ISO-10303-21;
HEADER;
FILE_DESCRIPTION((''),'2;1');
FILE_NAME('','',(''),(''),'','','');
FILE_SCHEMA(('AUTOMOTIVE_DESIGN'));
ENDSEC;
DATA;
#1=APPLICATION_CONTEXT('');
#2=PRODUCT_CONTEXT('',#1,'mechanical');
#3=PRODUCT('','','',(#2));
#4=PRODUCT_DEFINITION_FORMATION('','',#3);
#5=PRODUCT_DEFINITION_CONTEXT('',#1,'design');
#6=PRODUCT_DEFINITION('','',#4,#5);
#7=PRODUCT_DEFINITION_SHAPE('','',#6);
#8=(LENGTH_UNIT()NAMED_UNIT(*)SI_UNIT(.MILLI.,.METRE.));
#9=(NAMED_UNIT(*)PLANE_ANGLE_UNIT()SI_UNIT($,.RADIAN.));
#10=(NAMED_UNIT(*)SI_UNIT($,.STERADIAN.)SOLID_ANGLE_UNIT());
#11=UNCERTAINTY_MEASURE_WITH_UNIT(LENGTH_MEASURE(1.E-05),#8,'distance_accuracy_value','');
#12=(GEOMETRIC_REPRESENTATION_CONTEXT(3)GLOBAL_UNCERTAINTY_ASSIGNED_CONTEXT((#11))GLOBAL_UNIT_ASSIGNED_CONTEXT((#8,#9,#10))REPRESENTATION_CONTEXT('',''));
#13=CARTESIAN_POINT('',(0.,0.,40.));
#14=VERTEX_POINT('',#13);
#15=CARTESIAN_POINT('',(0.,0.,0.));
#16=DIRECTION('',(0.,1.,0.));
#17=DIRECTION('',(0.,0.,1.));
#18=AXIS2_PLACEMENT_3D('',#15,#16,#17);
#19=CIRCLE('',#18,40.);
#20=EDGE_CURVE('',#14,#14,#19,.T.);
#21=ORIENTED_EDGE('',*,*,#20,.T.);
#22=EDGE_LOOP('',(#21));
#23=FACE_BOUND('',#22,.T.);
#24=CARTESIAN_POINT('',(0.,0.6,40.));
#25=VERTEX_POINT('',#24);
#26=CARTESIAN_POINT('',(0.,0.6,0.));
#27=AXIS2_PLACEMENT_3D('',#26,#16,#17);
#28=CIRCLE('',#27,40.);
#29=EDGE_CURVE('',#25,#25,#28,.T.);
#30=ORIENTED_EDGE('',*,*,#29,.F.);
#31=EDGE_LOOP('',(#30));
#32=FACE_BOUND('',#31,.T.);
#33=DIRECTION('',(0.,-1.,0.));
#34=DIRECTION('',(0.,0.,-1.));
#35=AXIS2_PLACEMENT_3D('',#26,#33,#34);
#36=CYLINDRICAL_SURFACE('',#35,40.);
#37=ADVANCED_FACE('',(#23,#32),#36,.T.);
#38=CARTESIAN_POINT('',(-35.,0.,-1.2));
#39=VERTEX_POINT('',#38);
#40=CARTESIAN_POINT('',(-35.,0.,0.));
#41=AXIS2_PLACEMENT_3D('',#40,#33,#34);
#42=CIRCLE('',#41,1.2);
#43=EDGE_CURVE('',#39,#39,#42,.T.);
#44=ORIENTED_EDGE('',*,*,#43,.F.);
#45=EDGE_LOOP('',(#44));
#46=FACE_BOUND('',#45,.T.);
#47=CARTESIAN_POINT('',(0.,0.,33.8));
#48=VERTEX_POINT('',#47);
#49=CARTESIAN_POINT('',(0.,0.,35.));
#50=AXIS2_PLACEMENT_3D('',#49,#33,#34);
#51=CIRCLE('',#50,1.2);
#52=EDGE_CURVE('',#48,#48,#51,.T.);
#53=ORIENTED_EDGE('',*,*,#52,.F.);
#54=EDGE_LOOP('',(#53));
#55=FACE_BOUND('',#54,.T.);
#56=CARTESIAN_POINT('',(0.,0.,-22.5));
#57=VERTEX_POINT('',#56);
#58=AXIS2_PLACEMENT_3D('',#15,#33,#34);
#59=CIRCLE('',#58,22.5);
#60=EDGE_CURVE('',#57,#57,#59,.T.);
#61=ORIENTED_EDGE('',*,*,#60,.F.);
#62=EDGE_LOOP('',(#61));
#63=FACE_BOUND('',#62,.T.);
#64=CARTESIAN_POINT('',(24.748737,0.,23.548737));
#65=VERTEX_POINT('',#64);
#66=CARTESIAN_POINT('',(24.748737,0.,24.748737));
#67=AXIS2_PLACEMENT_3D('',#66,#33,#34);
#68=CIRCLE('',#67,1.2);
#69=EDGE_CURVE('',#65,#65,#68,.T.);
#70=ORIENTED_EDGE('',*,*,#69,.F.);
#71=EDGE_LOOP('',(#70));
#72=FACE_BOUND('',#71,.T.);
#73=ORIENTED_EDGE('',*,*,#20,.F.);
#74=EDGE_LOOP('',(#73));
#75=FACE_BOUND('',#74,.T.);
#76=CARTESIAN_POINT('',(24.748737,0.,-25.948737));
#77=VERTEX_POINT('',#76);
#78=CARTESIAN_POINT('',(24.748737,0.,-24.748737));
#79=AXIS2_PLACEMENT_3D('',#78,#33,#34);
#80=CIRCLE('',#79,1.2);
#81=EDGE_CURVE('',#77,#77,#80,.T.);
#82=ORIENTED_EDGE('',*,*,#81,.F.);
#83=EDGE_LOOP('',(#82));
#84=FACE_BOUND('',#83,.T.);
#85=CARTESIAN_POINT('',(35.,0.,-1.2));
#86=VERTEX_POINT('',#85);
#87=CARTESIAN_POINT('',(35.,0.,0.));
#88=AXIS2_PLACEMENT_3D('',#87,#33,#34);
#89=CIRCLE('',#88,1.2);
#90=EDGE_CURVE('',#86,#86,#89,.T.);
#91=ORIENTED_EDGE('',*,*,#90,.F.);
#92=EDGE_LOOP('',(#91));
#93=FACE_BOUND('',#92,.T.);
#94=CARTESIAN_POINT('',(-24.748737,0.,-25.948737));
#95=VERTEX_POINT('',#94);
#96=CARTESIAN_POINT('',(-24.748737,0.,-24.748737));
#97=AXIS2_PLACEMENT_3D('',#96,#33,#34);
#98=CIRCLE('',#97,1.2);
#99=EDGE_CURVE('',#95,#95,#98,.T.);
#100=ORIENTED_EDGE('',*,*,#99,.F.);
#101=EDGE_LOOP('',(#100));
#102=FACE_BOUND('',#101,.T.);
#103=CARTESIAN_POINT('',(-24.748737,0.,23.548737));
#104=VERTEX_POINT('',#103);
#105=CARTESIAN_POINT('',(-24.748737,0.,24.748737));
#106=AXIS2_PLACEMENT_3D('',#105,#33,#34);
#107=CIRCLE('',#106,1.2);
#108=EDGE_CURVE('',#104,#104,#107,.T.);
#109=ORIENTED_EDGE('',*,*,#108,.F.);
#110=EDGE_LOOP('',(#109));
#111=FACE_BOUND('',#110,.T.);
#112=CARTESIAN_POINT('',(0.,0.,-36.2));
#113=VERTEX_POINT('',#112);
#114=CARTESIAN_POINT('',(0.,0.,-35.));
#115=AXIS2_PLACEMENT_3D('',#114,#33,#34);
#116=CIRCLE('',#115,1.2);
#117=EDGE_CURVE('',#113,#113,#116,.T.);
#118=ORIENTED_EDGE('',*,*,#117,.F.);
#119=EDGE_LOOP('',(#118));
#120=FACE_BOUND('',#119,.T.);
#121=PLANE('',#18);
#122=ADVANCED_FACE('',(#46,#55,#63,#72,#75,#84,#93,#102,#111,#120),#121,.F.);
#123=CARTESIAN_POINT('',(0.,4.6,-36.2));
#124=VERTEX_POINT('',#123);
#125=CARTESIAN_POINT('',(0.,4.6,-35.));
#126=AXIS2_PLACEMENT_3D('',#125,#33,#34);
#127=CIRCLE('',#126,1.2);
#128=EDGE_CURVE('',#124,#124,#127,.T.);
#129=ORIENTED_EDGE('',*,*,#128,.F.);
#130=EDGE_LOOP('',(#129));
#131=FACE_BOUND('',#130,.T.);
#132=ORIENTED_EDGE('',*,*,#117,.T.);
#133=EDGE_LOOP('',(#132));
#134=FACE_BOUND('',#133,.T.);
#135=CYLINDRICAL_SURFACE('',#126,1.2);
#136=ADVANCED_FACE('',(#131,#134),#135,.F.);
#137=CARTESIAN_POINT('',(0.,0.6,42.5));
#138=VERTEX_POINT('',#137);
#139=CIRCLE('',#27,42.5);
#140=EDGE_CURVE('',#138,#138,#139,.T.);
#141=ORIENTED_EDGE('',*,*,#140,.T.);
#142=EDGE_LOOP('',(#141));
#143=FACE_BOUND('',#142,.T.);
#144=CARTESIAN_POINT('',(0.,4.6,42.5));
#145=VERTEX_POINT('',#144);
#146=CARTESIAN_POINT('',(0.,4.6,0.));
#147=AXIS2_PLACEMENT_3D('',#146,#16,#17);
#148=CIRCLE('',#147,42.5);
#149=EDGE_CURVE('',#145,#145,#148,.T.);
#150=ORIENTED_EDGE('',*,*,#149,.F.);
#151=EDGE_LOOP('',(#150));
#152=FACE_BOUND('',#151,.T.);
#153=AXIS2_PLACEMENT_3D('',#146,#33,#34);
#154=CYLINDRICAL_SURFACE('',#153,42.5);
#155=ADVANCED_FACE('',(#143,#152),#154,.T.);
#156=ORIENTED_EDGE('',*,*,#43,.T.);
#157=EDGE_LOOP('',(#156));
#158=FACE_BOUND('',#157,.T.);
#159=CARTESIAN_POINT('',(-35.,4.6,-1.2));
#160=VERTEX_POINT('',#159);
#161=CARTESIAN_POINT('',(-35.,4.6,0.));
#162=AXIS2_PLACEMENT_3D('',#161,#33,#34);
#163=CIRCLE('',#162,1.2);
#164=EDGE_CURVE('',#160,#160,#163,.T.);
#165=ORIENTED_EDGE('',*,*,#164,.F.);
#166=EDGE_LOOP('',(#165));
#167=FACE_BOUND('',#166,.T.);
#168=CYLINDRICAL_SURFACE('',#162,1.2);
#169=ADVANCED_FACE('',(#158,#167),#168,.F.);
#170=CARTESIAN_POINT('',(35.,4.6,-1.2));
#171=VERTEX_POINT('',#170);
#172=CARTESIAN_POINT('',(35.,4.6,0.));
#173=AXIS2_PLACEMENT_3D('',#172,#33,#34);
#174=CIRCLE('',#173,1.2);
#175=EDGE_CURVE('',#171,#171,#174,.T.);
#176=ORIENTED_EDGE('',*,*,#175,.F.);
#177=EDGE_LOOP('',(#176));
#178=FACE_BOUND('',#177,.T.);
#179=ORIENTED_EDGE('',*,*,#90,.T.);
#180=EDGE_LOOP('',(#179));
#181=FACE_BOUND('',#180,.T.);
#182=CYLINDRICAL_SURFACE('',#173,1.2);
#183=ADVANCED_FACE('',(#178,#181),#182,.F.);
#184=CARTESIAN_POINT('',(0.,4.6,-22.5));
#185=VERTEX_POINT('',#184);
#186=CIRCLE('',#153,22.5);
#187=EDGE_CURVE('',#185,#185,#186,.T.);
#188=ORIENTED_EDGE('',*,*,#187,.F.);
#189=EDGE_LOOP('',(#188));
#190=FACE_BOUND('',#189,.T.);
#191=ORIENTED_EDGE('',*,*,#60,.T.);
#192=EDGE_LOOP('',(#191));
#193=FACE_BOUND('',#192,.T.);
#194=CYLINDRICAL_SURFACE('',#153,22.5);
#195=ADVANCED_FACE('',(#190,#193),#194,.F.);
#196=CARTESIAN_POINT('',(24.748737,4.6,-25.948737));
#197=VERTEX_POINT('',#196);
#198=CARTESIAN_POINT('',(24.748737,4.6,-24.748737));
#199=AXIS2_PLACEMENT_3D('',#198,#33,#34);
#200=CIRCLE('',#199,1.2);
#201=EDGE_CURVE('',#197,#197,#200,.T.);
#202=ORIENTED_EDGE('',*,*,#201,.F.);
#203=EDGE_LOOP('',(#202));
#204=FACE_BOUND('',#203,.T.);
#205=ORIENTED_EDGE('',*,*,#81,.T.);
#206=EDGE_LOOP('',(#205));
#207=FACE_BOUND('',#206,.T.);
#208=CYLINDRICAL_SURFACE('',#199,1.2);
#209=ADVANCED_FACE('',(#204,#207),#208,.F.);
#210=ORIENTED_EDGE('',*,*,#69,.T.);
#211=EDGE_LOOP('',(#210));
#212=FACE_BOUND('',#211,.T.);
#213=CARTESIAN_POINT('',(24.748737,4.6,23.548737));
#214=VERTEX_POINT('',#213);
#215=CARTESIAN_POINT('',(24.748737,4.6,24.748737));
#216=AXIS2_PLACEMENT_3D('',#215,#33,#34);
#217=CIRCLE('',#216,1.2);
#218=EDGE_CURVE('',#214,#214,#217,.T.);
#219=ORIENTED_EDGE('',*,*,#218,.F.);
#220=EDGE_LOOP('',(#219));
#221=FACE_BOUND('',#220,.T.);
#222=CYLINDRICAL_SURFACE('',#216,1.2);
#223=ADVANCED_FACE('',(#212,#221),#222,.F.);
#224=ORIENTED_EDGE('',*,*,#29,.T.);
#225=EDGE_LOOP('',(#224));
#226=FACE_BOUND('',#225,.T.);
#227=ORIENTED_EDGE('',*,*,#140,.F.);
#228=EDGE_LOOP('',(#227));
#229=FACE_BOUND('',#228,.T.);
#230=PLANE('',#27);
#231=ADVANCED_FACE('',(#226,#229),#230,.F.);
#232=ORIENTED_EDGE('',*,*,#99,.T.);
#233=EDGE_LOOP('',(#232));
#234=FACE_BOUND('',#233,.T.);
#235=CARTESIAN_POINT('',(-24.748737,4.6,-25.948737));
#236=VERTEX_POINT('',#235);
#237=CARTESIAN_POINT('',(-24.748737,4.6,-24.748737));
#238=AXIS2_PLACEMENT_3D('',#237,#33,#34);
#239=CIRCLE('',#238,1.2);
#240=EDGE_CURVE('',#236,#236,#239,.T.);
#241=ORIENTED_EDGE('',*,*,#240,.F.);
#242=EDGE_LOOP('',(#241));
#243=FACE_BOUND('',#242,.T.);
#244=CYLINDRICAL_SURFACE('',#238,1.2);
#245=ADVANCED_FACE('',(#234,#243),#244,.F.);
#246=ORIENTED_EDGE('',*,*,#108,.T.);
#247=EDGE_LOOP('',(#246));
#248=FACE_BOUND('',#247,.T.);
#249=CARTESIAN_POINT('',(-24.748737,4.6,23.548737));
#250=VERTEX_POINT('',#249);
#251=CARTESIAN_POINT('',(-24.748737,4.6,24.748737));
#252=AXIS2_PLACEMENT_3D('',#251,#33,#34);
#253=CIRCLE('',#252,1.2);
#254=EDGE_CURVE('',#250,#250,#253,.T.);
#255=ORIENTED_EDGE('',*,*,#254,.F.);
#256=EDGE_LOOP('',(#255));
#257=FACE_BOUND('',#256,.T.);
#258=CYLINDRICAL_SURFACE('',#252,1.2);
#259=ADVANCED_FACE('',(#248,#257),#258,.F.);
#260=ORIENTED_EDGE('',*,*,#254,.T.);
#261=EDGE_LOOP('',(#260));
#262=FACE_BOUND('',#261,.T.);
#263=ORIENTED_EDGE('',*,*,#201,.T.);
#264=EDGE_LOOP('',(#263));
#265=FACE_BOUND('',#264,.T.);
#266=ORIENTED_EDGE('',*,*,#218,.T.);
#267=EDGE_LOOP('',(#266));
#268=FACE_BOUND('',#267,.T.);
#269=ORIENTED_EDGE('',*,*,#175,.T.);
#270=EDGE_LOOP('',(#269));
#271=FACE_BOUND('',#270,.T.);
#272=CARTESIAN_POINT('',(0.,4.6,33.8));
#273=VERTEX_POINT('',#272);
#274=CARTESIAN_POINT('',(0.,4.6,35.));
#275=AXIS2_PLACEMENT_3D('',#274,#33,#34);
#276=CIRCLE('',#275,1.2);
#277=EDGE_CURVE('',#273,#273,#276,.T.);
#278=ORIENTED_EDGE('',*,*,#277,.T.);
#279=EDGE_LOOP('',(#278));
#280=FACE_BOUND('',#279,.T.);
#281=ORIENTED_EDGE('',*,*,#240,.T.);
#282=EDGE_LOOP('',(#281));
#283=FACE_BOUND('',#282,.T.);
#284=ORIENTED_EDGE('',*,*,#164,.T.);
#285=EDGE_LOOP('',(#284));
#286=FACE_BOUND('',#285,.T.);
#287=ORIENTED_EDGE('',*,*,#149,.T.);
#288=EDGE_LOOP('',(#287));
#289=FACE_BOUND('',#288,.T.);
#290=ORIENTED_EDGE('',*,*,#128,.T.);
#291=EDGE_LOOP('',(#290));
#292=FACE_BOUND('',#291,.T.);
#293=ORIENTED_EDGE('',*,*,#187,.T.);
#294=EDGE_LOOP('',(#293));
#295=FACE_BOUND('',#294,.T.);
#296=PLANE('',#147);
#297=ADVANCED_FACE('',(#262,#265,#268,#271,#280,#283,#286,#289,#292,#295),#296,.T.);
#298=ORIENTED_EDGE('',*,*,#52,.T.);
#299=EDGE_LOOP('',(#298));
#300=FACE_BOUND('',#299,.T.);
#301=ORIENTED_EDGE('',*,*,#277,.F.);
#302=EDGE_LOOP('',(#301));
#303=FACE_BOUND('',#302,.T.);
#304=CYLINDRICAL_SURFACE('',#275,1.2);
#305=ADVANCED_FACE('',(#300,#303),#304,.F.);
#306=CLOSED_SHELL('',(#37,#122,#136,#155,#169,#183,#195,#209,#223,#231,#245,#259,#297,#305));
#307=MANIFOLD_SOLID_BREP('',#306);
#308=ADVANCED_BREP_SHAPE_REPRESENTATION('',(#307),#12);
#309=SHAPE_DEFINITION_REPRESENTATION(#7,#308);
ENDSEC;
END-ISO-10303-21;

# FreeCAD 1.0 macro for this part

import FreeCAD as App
import Part
import Sketcher
from FreeCAD import Vector
Q = App.Units.Quantity

doc = App.newDocument("Part")
body = doc.addObject("PartDesign::Body", "Body")

sketch1 = doc.addObject("Sketcher::SketchObject", "Sketch")
body.addObject(sketch1)
sketch1.AttachmentSupport = (doc.XZ_Plane, [""])
sketch1.MapMode = "FlatFace"
sketch1.addGeometry(Part.Circle(Vector(0, 0, 0), Vector(0, 0, 1), 40), False)
sketch1.addConstraint([
    Sketcher.Constraint("Coincident", 0, 3, -1, 1),
    Sketcher.Constraint("Diameter", 0, Q("80 mm")),
])
pad1 = doc.addObject("PartDesign::Pad", "Pad")
body.addObject(pad1)
pad1.Profile = sketch1
pad1.Length = 0.6
pad1.Reversed = True

sketch2 = doc.addObject("Sketcher::SketchObject", "Sketch001")
body.addObject(sketch2)
sketch2.AttachmentSupport = (doc.XZ_Plane, [""])
sketch2.MapMode = "FlatFace"
sketch2.AttachmentOffset = App.Placement(Vector(0, 0, -0.6), App.Rotation())
sketch2.addGeometry(Part.Circle(Vector(0, 0, 0), Vector(0, 0, 1), 42), False)
sketch2.addConstraint([
    Sketcher.Constraint("Coincident", 0, 3, -1, 1),
    Sketcher.Constraint("Diameter", 0, Q("85 mm")),
])
pad2 = doc.addObject("PartDesign::Pad", "Pad001")
body.addObject(pad2)
pad2.Profile = sketch2
pad2.Length = 4
pad2.Reversed = True

sketch3 = doc.addObject("Sketcher::SketchObject", "Sketch002")
body.addObject(sketch3)
sketch3.AttachmentSupport = (doc.XZ_Plane, [""])
sketch3.MapMode = "FlatFace"
sketch3.addGeometry(Part.Circle(Vector(0, 0, 0), Vector(0, 0, 1), 22), False)
sketch3.addConstraint([
    Sketcher.Constraint("Coincident", 0, 3, -1, 1),
    Sketcher.Constraint("Diameter", 0, Q("45 mm")),
])
pocket1 = doc.addObject("PartDesign::Pocket", "Pocket")
body.addObject(pocket1)
pocket1.Profile = sketch3
pocket1.Type = "ThroughAll"

sketch4 = doc.addObject("Sketcher::SketchObject", "Sketch003")
body.addObject(sketch4)
sketch4.AttachmentSupport = (doc.XZ_Plane, [""])
sketch4.MapMode = "FlatFace"
sketch4.addGeometry([
    Part.Circle(Vector(0, 35, 0), Vector(0, 0, 1), 1.2),
    Part.Circle(Vector(24.7, 24.7, 0), Vector(0, 0, 1), 1.2),
    Part.Circle(Vector(35, 0, 0), Vector(0, 0, 1), 1.2),
    Part.Circle(Vector(24.7, -24.7, 0), Vector(0, 0, 1), 1.2),
    Part.Circle(Vector(0, -35, 0), Vector(0, 0, 1), 1.2),
    Part.Circle(Vector(-24.7, -24.7, 0), Vector(0, 0, 1), 1.2),
    Part.Circle(Vector(-35, 0, 0), Vector(0, 0, 1), 1.2),
    Part.Circle(Vector(-24.7, 24.7, 0), Vector(0, 0, 1), 1.2),
], False)
sketch4.addConstraint([
    Sketcher.Constraint("Equal", 0, 1),
    Sketcher.Constraint("Equal", 1, 2),
    Sketcher.Constraint("Equal", 2, 3),
    Sketcher.Constraint("Equal", 3, 4),
    Sketcher.Constraint("Equal", 4, 5),
    Sketcher.Constraint("Equal", 5, 6),
    Sketcher.Constraint("Equal", 6, 7),
    Sketcher.Constraint("Symmetric", 0, 3, 4, 3, -1, 1),
    Sketcher.Constraint("Symmetric", 1, 3, 5, 3, -1, 1),
    Sketcher.Constraint("Symmetric", 2, 3, 6, 3, -1, 1),
    Sketcher.Constraint("Symmetric", 3, 3, 7, 3, -1, 1),
    Sketcher.Constraint("Symmetric", 3, 3, 5, 3, -2),
    Sketcher.Constraint("PointOnObject", 0, 3, -2),
    Sketcher.Constraint("PointOnObject", 2, 3, -1),
    Sketcher.Constraint("Diameter", 0, Q("2.4 mm")),
    Sketcher.Constraint("DistanceY", -1, 1, 0, 3, Q("35 mm")),
    Sketcher.Constraint("DistanceX", -1, 1, 2, 3, Q("35 mm")),
    Sketcher.Constraint("DistanceX", -1, 1, 1, 3, Q("24.748737 mm")),
    Sketcher.Constraint("DistanceY", -1, 1, 1, 3, Q("24.748737 mm")),
])
pocket2 = doc.addObject("PartDesign::Pocket", "Pocket001")
body.addObject(pocket2)
pocket2.Profile = sketch4
pocket2.Type = "ThroughAll"

doc.recompute()
